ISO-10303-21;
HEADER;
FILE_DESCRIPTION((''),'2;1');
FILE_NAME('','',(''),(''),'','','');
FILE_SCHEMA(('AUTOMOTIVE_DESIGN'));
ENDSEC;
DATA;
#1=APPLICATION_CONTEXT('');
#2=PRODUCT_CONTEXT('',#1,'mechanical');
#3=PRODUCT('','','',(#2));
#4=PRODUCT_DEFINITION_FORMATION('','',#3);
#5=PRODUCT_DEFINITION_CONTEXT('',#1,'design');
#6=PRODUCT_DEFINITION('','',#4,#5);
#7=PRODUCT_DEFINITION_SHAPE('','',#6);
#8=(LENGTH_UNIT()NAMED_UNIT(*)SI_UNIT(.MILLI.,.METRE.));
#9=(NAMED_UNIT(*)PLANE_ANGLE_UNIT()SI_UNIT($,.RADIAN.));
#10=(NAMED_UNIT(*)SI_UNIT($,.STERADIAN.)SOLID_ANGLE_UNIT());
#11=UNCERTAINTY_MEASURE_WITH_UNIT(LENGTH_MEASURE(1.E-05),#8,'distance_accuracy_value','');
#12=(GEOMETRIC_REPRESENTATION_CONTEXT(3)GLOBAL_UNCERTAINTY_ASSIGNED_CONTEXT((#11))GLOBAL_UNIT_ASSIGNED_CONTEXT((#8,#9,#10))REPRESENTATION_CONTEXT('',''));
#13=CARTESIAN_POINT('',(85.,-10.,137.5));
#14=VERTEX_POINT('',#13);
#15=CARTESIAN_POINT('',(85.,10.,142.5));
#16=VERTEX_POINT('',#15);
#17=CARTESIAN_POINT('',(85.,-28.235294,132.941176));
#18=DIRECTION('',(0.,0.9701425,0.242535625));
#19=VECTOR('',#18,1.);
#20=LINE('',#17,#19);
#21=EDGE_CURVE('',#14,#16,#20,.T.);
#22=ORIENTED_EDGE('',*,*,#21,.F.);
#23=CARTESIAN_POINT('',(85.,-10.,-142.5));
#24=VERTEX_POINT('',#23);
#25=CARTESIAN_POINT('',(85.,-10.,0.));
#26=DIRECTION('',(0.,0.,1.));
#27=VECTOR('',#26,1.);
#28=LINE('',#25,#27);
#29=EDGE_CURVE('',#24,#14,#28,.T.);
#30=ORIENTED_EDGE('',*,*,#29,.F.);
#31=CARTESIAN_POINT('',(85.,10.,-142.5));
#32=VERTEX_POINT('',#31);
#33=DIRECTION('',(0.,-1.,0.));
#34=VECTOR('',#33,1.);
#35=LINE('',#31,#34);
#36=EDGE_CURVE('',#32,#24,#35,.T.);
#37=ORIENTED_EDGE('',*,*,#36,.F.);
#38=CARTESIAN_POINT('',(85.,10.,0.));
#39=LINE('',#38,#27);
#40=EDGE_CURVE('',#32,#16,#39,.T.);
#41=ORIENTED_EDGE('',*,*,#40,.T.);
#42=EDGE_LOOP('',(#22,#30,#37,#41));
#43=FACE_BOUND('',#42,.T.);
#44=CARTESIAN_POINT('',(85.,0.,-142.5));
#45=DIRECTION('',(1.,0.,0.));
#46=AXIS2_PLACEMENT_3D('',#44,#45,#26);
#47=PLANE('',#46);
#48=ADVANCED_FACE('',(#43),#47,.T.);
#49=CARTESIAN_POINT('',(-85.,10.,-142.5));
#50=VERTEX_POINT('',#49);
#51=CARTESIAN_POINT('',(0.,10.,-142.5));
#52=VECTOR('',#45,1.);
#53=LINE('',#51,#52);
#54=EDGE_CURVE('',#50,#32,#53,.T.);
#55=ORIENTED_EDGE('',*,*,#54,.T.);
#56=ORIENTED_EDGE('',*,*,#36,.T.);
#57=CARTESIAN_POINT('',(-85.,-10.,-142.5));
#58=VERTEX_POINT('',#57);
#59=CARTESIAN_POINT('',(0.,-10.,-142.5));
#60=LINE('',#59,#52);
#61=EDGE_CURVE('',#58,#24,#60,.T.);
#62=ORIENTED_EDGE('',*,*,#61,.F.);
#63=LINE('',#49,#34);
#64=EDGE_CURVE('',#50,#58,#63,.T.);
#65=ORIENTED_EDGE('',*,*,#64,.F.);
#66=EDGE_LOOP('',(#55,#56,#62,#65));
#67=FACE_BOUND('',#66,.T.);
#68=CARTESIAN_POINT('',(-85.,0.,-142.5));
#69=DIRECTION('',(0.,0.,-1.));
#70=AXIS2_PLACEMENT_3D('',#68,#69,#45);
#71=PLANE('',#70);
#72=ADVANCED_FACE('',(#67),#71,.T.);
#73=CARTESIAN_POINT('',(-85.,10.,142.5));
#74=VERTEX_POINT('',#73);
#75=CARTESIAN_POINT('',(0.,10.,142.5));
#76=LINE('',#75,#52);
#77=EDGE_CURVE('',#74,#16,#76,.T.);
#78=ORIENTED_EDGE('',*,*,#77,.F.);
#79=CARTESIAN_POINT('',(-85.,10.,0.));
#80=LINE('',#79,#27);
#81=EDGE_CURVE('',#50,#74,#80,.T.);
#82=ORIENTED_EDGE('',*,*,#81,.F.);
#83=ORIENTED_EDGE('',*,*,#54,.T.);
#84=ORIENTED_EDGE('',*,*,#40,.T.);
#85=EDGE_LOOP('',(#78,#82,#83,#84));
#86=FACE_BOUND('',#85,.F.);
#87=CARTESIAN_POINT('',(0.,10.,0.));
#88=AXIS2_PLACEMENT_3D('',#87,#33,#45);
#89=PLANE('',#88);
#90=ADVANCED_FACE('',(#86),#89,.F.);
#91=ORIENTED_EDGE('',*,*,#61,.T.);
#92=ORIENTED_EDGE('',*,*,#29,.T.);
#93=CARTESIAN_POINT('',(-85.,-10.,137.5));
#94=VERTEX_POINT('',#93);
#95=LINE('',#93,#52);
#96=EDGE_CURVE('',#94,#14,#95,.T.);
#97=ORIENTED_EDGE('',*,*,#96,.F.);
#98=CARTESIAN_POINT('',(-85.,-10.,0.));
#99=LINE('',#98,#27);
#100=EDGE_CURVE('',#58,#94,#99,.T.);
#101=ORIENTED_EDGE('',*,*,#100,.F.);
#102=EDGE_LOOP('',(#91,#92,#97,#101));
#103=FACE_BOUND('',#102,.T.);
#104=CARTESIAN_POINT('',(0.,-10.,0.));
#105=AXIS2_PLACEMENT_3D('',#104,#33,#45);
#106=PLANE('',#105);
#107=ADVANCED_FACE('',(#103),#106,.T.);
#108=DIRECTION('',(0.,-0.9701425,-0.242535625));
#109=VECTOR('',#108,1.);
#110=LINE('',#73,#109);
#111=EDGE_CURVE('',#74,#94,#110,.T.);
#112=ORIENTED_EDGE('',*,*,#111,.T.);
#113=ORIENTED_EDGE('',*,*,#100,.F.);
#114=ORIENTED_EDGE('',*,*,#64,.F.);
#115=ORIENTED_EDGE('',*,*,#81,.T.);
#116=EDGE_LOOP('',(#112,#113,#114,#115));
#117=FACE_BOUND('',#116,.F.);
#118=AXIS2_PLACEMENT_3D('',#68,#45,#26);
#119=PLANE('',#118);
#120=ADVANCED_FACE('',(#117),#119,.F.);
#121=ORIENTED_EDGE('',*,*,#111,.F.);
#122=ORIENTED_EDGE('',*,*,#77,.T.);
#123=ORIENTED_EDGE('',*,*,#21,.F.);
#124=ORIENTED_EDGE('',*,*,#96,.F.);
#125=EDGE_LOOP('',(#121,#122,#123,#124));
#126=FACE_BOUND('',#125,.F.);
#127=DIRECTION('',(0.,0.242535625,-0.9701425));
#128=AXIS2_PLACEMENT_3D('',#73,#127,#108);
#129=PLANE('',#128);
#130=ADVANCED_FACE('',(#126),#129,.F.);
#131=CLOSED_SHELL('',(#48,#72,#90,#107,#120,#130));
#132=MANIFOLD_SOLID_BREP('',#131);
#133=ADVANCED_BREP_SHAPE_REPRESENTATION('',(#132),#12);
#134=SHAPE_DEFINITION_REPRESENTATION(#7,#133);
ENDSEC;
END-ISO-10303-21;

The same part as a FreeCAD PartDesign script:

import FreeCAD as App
import Part
import Sketcher

V = App.Vector

doc = App.newDocument("Part")
params = doc.addObject("Spreadsheet::Sheet", "Params")
for row, (alias, value) in enumerate([
    ("sketch1_width", "170 mm"),
    ("sketch1_height", "285 mm"),
    ("pad1_length", "20 mm"),
    ("sketch2_width", "5 mm"),
    ("sketch2_height", "20 mm"),
], start=1):
    params.set(f"A{row}", alias)
    params.set(f"B{row}", "=" + value)
    params.setAlias(f"B{row}", alias)

body = doc.addObject("PartDesign::Body", "Body")

# Sketch on XY plane
sketch1 = doc.addObject("Sketcher::SketchObject", "Sketch")
body.addObject(sketch1)
sketch1.AttachmentSupport = (doc.XY_Plane, [""])
sketch1.MapMode = "FlatFace"
sketch1.addGeometry([
    Part.LineSegment(V(-85, 142, 0), V(-85, -142, 0)),
    Part.LineSegment(V(-85, -142, 0), V(85, -142, 0)),
    Part.LineSegment(V(85, -142, 0), V(85, 142, 0)),
    Part.LineSegment(V(85, 142, 0), V(-85, 142, 0)),
], False)
sketch1.addConstraint([
    Sketcher.Constraint("Coincident", 0, 2, 1, 1),
    Sketcher.Constraint("Coincident", 1, 2, 2, 1),
    Sketcher.Constraint("Coincident", 2, 2, 3, 1),
    Sketcher.Constraint("Coincident", 3, 2, 0, 1),
    Sketcher.Constraint("Vertical", 0),
    Sketcher.Constraint("Horizontal", 1),
    Sketcher.Constraint("Vertical", 2),
    Sketcher.Constraint("Horizontal", 3),
    Sketcher.Constraint("Symmetric", 0, 2, 2, 2, -1, 1),
    Sketcher.Constraint("DistanceX", 1, 1, 1, 2, 170.0),
    Sketcher.Constraint("DistanceY", 0, 2, 0, 1, 285.0),
])
sketch1.setExpression("Constraints[9]", "Params.sketch1_width")
sketch1.setExpression("Constraints[10]", "Params.sketch1_height")
pad1 = doc.addObject("PartDesign::Pad", "Pad")
body.addObject(pad1)
pad1.Profile = sketch1
pad1.setExpression("Length", "Params.pad1_length")
pad1.Midplane = True

# Sketch on YZ plane
sketch2 = doc.addObject("Sketcher::SketchObject", "Sketch001")
body.addObject(sketch2)
sketch2.AttachmentSupport = (doc.YZ_Plane, [""])
sketch2.MapMode = "FlatFace"
sketch2.AttachmentOffset = App.Placement(V(0, 0, -85), App.Rotation())
sketch2.addGeometry([
    Part.LineSegment(V(142, -10, 0), V(138, 10, 0)),
    Part.LineSegment(V(138, 10, 0), V(142, 10, 0)),
    Part.LineSegment(V(142, 10, 0), V(142, -10, 0)),
], False)
sketch2.addConstraint([
    Sketcher.Constraint("Coincident", 0, 2, 1, 1),
    Sketcher.Constraint("Coincident", 1, 2, 2, 1),
    Sketcher.Constraint("Coincident", 2, 2, 0, 1),
    Sketcher.Constraint("Horizontal", 1),
    Sketcher.Constraint("Vertical", 2),
    Sketcher.Constraint("DistanceX", 1, 1, 1, 2, 5.0),
    Sketcher.Constraint("DistanceY", 2, 2, 2, 1, 20.0),
    Sketcher.Constraint("DistanceY", -1, 1, 0, 2, 10.0),
    Sketcher.Constraint("DistanceX", -1, 1, 0, 2, 137.5),
])
sketch2.setExpression("Constraints[5]", "Params.sketch2_width")
sketch2.setExpression("Constraints[6]", "Params.sketch2_height")
pocket1 = doc.addObject("PartDesign::Pocket", "Pocket")
body.addObject(pocket1)
pocket1.Profile = sketch2
pocket1.Type = "ThroughAll"
pocket1.Reversed = True
body2 = doc.addObject("PartDesign::Body", "Body001")
doc.recompute()

body.Placement = App.Placement(V(0, 0, 0), App.Rotation(V(1, 0, 0), 90))
boolean = doc.addObject("PartDesign::Boolean", "Boolean")
body2.addObject(boolean)
boolean.Type = "Fuse"
boolean.addObjects([body])

doc.recompute()
